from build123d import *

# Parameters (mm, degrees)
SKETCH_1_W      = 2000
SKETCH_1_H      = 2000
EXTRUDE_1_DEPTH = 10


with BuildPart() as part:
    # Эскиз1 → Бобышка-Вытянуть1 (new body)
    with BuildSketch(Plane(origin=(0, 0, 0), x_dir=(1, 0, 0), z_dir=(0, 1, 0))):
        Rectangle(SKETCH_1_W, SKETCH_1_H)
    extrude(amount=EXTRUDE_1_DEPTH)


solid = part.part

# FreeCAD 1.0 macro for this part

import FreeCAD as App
import Part
import Sketcher

V = App.Vector
Q = App.Units.Quantity


def add_polygon(sketch, points):
    """Adds a closed chain of lines whose ends are joined by coincident constraints."""
    first, n = sketch.GeometryCount, len(points)
    for a, b in zip(points, points[1:] + points[:1]):
        sketch.addGeometry(Part.LineSegment(App.Vector(*a, 0), App.Vector(*b, 0)), False)
    for i in range(n):
        sketch.addConstraint(Sketcher.Constraint("Coincident", first + i, 2, first + (i + 1) % n, 1))

doc = App.newDocument("Part")
params = doc.addObject("Spreadsheet::Sheet", "Params")
for row, (alias, value) in enumerate([
    ("sketch1_width", "2000 mm"),
    ("pad1_length", "10 mm"),
], start=1):
    params.set(f"A{row}", alias)
    params.set(f"B{row}", "=" + value)
    params.setAlias(f"B{row}", alias)

body = doc.addObject("PartDesign::Body", "Body")

sketch1 = body.newObject("Sketcher::SketchObject", "Sketch")
sketch1.AttachmentSupport = (doc.getObject("XZ_Plane"), [""])
sketch1.MapMode = "FlatFace"
add_polygon(sketch1, [(-1000, -1000), (-1000, 1000), (1000, 1000), (1000, -1000)])
sketch1.addConstraint([
    Sketcher.Constraint("Vertical", 0),
    Sketcher.Constraint("Horizontal", 1),
    Sketcher.Constraint("Vertical", 2),
    Sketcher.Constraint("Horizontal", 3),
    Sketcher.Constraint("Symmetric", 0, 2, 2, 2, -1, 1),
    Sketcher.Constraint("Equal", 3, 0),
    Sketcher.Constraint("DistanceX", 1, 1, 1, 2, Q("2000 mm")),
])
sketch1.setExpression("Constraints[10]", "Params.sketch1_width")
pad1 = body.newObject("PartDesign::Pad", "Pad")
pad1.Profile = sketch1
pad1.setExpression("Length", "Params.pad1_length")
pad1.Reversed = True

doc.recompute()
